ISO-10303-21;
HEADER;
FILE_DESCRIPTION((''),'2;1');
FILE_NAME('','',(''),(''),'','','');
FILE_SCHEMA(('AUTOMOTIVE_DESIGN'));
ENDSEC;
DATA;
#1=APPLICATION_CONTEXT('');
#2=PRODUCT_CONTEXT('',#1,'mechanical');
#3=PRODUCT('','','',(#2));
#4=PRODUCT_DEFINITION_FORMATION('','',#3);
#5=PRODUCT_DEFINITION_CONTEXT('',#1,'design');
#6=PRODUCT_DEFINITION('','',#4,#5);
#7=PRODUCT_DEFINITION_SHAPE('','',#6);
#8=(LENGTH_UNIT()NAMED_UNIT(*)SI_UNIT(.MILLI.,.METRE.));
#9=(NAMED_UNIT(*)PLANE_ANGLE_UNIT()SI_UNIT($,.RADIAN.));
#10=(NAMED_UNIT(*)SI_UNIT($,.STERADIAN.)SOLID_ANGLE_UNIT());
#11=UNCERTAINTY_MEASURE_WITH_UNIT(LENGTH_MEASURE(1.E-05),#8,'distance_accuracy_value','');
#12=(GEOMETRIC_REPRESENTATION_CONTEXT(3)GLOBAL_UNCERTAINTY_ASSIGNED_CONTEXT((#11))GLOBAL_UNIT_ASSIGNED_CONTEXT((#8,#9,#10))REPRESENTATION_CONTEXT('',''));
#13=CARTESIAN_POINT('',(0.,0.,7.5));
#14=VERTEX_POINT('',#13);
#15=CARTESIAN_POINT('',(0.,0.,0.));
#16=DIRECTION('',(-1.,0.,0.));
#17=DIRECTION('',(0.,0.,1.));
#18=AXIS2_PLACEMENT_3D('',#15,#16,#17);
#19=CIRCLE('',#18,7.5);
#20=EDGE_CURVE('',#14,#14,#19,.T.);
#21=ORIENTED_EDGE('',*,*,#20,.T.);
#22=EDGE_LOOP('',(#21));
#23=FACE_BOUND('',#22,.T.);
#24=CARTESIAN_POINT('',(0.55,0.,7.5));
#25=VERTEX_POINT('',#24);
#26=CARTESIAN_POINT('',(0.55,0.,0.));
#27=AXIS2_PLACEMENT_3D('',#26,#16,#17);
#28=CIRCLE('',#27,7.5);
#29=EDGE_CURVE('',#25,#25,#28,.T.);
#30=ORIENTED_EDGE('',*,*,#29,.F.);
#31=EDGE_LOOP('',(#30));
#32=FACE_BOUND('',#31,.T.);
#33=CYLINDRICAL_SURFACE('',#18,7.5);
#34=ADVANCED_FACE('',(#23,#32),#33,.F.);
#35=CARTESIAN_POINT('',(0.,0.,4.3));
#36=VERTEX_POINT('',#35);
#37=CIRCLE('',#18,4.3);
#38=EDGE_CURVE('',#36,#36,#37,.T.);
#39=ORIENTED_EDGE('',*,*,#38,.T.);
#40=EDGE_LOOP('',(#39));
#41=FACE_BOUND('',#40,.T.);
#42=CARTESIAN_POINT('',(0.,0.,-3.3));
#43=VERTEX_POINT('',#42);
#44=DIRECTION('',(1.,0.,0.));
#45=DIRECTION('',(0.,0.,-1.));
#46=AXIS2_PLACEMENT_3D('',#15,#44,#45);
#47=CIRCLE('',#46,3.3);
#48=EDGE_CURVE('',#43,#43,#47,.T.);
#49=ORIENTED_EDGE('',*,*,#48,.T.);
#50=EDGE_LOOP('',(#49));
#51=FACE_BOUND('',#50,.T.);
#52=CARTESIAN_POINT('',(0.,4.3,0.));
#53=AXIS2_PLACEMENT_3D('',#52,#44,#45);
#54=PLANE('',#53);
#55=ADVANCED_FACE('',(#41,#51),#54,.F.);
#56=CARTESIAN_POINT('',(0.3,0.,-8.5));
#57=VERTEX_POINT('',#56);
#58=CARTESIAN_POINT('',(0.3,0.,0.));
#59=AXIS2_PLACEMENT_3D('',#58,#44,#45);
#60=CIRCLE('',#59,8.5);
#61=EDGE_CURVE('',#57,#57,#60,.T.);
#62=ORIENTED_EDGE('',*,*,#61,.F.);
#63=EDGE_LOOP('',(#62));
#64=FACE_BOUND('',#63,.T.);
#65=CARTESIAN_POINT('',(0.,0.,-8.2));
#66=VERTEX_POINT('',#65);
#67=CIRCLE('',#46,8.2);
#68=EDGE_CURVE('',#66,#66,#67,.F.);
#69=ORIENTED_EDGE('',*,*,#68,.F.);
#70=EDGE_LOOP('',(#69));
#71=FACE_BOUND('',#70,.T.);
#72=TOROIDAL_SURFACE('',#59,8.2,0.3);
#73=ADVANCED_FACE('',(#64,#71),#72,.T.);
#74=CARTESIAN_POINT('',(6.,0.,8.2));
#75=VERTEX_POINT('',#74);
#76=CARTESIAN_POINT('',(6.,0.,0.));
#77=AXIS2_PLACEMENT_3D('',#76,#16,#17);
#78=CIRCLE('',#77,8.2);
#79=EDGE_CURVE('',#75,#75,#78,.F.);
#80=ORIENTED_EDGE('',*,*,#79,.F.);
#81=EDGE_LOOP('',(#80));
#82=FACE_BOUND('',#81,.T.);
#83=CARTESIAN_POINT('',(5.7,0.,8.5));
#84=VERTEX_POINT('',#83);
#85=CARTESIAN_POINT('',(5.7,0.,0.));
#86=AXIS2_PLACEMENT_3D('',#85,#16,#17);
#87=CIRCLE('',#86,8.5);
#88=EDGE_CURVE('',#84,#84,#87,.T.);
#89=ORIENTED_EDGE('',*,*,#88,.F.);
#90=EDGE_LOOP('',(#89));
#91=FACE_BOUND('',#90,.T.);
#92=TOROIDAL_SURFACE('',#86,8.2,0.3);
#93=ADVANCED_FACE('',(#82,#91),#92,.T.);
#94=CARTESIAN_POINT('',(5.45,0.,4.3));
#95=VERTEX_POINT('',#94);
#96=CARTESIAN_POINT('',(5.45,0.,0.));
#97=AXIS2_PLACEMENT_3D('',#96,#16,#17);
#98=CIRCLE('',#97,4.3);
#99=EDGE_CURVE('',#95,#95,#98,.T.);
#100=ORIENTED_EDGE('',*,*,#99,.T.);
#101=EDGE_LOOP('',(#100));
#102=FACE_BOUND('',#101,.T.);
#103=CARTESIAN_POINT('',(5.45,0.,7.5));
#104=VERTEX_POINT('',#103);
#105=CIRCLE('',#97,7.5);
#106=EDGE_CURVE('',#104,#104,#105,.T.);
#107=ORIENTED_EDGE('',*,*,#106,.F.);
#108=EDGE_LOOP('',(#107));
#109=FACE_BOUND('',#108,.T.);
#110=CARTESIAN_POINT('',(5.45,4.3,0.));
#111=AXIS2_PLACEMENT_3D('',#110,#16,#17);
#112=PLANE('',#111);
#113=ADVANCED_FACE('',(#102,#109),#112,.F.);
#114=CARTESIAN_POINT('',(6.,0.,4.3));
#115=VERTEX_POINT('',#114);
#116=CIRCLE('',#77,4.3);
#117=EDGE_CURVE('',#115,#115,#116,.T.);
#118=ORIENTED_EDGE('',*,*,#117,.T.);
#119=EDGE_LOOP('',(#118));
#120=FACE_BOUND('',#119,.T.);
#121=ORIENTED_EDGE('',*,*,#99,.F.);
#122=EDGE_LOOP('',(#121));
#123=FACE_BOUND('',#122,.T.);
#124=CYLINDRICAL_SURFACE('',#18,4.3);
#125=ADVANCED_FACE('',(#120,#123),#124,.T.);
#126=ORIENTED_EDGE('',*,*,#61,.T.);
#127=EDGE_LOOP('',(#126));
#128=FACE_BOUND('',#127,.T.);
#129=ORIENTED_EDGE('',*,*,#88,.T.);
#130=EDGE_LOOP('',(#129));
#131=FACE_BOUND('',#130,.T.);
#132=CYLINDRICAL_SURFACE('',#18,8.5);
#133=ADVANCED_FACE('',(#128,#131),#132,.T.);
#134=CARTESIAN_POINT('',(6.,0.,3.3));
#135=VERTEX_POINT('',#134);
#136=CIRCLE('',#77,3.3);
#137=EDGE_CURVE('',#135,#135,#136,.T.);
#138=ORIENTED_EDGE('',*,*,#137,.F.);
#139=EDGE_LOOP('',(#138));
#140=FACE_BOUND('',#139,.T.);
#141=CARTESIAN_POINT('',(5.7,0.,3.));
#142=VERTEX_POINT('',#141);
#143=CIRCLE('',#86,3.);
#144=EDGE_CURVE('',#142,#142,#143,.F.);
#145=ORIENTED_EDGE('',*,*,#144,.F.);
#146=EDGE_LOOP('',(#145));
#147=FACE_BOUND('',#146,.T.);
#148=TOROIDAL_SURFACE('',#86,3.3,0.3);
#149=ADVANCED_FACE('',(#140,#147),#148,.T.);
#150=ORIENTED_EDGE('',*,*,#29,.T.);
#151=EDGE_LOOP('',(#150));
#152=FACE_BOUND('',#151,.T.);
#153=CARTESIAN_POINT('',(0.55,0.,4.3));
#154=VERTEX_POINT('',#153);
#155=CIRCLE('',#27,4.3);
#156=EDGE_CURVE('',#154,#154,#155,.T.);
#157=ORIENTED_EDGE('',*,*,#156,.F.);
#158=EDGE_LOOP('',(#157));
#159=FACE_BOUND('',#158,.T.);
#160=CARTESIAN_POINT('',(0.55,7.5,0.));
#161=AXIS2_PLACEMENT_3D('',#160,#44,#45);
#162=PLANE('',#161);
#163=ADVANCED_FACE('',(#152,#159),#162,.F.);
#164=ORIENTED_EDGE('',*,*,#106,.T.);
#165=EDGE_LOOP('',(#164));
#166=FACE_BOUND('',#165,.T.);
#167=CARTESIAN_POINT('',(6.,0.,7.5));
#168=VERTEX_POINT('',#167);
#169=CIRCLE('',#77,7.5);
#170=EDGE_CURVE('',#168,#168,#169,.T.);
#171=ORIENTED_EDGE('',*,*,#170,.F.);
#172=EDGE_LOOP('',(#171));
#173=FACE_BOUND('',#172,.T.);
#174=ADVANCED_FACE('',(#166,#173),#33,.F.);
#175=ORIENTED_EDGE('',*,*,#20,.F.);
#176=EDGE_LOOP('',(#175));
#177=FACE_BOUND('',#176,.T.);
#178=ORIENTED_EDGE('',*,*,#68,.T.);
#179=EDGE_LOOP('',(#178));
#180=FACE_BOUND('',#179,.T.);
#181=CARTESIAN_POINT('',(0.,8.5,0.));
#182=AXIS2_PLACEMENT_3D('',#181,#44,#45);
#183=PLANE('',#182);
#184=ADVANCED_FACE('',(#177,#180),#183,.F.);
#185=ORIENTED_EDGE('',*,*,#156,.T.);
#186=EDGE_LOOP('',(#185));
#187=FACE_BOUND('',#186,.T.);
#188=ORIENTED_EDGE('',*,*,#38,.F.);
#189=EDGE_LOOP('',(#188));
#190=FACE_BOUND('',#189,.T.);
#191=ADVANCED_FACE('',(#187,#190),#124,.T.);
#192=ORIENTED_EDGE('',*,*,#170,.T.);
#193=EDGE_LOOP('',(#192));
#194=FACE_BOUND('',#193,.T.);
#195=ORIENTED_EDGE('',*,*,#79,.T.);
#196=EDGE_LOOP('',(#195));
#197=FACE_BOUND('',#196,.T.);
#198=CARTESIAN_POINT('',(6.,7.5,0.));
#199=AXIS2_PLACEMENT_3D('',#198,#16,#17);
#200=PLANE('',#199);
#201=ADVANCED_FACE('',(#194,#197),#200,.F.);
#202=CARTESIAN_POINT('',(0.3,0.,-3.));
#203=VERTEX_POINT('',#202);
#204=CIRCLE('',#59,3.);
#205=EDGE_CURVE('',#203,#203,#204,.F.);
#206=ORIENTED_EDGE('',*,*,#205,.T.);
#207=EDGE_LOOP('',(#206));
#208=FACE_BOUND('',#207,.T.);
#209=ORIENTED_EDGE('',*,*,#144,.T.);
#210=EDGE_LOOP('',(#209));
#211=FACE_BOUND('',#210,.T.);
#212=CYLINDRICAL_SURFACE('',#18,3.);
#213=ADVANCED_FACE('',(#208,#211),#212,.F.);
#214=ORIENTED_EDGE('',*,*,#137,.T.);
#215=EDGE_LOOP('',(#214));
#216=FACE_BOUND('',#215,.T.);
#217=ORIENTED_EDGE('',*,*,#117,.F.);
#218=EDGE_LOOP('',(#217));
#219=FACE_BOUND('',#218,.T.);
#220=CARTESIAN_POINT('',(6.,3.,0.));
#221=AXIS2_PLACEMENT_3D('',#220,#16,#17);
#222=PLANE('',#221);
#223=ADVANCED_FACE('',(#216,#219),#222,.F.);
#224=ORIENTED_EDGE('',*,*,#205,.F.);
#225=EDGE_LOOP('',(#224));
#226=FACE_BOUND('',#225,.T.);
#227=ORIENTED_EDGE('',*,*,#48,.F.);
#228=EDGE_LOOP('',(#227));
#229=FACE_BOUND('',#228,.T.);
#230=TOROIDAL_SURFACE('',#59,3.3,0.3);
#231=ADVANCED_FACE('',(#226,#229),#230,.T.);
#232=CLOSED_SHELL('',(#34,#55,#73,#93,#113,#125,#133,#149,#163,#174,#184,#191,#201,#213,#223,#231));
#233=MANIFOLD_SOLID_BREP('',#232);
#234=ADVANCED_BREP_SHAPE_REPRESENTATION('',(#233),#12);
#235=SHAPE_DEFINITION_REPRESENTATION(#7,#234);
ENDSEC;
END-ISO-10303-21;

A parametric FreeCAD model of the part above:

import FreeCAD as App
import Part
import Sketcher
from FreeCAD import Vector


def edges_at(feature, points):
    """Names of the edges that pass closest to the given points."""
    edges = feature.Shape.Edges
    near = lambda p: min(range(len(edges)), key=lambda i: edges[i].distToShape(Part.Vertex(*p))[0])
    return sorted({f"Edge{near(p) + 1}" for p in points})

doc = App.newDocument("Part")
params = doc.addObject("Spreadsheet::Sheet", "Params")
for row, (alias, value) in enumerate([
    ("sketch1_width", "6 mm"),
    ("sketch1_height", "1 mm"),
    ("sketch1_height2", "1.3 mm"),
    ("sketch1_height3", "3.2 mm"),
    ("sketch1_width2", "0.55 mm"),
    ("revolution_angle", "360 deg"),
    ("fillet_radius", "0.3 mm"),
], start=1):
    params.set(f"A{row}", alias)
    params.set(f"B{row}", "=" + value)
    params.setAlias(f"B{row}", alias)

body = doc.addObject("PartDesign::Body", "Body")

# Sketch on XY plane
sketch1 = doc.addObject("Sketcher::SketchObject", "Sketch")
body.addObject(sketch1)
sketch1.AttachmentSupport = (doc.XY_Plane, [""])
sketch1.MapMode = "FlatFace"
sketch1.addGeometry([
    Part.LineSegment(Vector(0, 3, 0), Vector(6, 3, 0)),  # 0
    Part.LineSegment(Vector(6, 3, 0), Vector(6, 4.3, 0)),  # 1
    Part.LineSegment(Vector(6, 4.3, 0), Vector(5.5, 4.3, 0)),  # 2
    Part.LineSegment(Vector(5.5, 4.3, 0), Vector(5.5, 7.5, 0)),  # 3
    Part.LineSegment(Vector(5.5, 7.5, 0), Vector(6, 7.5, 0)),  # 4
    Part.LineSegment(Vector(6, 7.5, 0), Vector(6, 8.5, 0)),  # 5
    Part.LineSegment(Vector(6, 8.5, 0), Vector(0, 8.5, 0)),  # 6
    Part.LineSegment(Vector(0, 8.5, 0), Vector(0, 7.5, 0)),  # 7
    Part.LineSegment(Vector(0, 7.5, 0), Vector(0.6, 7.5, 0)),  # 8
    Part.LineSegment(Vector(0.6, 7.5, 0), Vector(0.6, 4.3, 0)),  # 9
    Part.LineSegment(Vector(0.6, 4.3, 0), Vector(0, 4.3, 0)),  # 10
    Part.LineSegment(Vector(0, 4.3, 0), Vector(0, 3, 0)),  # 11
], False)
sketch1.addConstraint([
    Sketcher.Constraint("Coincident", 0, 2, 1, 1),
    Sketcher.Constraint("Coincident", 1, 2, 2, 1),
    Sketcher.Constraint("Coincident", 2, 2, 3, 1),
    Sketcher.Constraint("Coincident", 3, 2, 4, 1),
    Sketcher.Constraint("Coincident", 4, 2, 5, 1),
    Sketcher.Constraint("Coincident", 5, 2, 6, 1),
    Sketcher.Constraint("Coincident", 6, 2, 7, 1),
    Sketcher.Constraint("Coincident", 7, 2, 8, 1),
    Sketcher.Constraint("Coincident", 8, 2, 9, 1),
    Sketcher.Constraint("Coincident", 9, 2, 10, 1),
    Sketcher.Constraint("Coincident", 10, 2, 11, 1),
    Sketcher.Constraint("Coincident", 11, 2, 0, 1),
    Sketcher.Constraint("Horizontal", 0),
    Sketcher.Constraint("Vertical", 1),
    Sketcher.Constraint("Horizontal", 2),
    Sketcher.Constraint("Vertical", 3),
    Sketcher.Constraint("Horizontal", 4),
    Sketcher.Constraint("Vertical", 5),
    Sketcher.Constraint("Horizontal", 6),
    Sketcher.Constraint("Vertical", 7),
    Sketcher.Constraint("Horizontal", 8),
    Sketcher.Constraint("Vertical", 9),
    Sketcher.Constraint("Horizontal", 10),
    Sketcher.Constraint("Vertical", 11),
    Sketcher.Constraint("PointOnObject", 6, 2, -2),
    Sketcher.Constraint("PointOnObject", 10, 2, -2),
    Sketcher.Constraint("Horizontal", 4, 2, 7, 2),
    Sketcher.Constraint("Horizontal", 2, 2, 9, 2),
    Sketcher.Constraint("Vertical", 1, 2, 4, 2),
    Sketcher.Constraint("Equal", 4, 8),
    Sketcher.Constraint("DistanceX", 0, 1, 0, 2, 6.0),
    Sketcher.Constraint("DistanceY", 5, 1, 5, 2, 1.0),
    Sketcher.Constraint("DistanceY", 1, 1, 1, 2, 1.3),
    Sketcher.Constraint("DistanceY", 3, 1, 3, 2, 3.2),
    Sketcher.Constraint("DistanceY", -1, 1, 0, 2, 3.0),
    Sketcher.Constraint("DistanceX", 2, 2, 2, 1, 0.55),
])
sketch1.setExpression("Constraints[30]", "Params.sketch1_width")
sketch1.setExpression("Constraints[31]", "Params.sketch1_height")
sketch1.setExpression("Constraints[32]", "Params.sketch1_height2")
sketch1.setExpression("Constraints[33]", "Params.sketch1_height3")
sketch1.setExpression("Constraints[35]", "Params.sketch1_width2")
revolution = doc.addObject("PartDesign::Revolution", "Revolution")
body.addObject(revolution)
revolution.Profile = sketch1
revolution.ReferenceAxis = (sketch1, ["H_Axis"])
revolution.setExpression("Angle", "Params.revolution_angle")
doc.recompute()

fillet = doc.addObject("PartDesign::Fillet", "Fillet")
body.addObject(fillet)
fillet.Base = (revolution, edges_at(revolution, [
    (0, -8.5, 0),
    (6, -8.5, 0),
    (6, -3, 0),
    (0, -3, 0),
]))
fillet.setExpression("Radius", "Params.fillet_radius")

doc.recompute()
